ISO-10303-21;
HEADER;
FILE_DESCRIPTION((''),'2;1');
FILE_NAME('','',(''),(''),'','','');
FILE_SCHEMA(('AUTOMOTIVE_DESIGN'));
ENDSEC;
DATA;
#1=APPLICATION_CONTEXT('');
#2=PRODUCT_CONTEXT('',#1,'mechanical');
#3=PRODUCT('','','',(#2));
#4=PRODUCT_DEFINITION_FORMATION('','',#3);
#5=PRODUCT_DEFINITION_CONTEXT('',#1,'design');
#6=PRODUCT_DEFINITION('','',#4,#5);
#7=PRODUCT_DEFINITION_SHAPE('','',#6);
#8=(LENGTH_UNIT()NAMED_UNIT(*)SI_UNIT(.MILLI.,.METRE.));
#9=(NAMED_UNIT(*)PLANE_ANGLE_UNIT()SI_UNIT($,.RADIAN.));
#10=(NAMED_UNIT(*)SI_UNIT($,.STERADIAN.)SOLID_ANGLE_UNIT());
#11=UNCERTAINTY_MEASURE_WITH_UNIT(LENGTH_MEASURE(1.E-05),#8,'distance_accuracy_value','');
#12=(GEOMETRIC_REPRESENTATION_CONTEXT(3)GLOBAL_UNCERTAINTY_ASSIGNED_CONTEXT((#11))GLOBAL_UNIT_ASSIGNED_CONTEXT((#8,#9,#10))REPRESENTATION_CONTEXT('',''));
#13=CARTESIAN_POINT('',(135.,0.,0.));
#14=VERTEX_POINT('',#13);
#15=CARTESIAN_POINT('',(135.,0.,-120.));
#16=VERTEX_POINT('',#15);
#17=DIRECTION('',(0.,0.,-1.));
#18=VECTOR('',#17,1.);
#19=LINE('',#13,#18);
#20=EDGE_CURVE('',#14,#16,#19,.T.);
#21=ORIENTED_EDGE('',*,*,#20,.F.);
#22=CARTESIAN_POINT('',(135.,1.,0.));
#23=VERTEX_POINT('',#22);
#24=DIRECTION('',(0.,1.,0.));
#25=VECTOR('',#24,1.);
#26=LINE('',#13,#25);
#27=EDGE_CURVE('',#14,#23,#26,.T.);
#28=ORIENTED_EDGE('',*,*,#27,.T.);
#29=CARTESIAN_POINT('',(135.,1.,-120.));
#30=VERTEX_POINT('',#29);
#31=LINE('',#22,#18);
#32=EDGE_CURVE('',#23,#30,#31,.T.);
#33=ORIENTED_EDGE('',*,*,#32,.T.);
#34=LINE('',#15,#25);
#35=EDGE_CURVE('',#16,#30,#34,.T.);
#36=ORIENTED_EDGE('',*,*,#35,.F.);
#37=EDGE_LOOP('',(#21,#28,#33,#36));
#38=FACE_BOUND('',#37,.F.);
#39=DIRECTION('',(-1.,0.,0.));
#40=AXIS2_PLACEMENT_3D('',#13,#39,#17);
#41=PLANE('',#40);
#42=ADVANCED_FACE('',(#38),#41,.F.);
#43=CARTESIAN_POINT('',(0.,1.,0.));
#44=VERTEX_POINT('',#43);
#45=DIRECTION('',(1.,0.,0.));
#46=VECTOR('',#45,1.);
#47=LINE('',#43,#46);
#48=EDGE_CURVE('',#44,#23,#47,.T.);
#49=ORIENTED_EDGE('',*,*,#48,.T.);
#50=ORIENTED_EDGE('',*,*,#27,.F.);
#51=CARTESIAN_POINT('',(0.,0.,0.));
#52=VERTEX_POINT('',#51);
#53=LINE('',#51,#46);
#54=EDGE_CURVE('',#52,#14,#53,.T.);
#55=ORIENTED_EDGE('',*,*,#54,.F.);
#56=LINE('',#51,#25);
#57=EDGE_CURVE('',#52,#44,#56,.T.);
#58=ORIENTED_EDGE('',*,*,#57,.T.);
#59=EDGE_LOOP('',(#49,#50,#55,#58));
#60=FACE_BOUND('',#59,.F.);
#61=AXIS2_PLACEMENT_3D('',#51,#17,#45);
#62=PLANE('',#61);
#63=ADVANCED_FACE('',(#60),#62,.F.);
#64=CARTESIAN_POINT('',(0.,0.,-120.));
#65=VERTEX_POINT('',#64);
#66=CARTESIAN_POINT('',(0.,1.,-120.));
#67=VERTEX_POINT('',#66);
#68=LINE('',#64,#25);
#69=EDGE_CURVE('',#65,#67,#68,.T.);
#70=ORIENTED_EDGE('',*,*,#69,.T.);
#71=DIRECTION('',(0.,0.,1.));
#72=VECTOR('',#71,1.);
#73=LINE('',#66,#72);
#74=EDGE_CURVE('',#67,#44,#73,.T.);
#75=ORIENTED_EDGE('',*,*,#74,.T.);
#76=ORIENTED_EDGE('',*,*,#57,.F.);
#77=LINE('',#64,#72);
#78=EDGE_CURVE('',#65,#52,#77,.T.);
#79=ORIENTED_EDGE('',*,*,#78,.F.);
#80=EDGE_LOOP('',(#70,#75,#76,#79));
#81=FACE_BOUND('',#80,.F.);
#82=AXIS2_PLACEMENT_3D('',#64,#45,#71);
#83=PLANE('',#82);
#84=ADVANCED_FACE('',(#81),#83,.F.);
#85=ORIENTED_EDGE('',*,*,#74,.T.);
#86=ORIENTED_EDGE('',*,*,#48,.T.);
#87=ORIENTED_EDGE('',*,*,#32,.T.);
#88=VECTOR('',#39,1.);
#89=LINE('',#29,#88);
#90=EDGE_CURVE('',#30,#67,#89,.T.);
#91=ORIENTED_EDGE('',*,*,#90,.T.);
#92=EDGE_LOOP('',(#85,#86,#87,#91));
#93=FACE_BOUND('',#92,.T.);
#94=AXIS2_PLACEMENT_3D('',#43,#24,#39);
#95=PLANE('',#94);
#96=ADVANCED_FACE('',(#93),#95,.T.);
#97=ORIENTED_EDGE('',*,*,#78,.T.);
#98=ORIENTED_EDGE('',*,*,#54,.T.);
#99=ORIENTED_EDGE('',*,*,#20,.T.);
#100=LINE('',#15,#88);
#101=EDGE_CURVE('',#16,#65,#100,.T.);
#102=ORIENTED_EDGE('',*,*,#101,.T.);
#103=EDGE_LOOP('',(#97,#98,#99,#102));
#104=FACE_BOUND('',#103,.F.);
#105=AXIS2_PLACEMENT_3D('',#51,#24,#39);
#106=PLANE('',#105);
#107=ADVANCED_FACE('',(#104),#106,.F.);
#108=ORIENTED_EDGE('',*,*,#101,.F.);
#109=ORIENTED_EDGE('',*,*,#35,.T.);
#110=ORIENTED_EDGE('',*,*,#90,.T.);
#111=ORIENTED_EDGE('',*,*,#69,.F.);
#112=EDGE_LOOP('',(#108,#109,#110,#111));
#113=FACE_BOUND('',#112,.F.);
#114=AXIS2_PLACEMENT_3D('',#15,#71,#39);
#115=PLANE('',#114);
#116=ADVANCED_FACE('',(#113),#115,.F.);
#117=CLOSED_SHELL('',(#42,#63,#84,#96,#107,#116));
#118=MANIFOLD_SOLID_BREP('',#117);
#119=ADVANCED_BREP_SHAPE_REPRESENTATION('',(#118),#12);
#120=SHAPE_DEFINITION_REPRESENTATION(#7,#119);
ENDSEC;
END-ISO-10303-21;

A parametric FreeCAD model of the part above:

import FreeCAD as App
import Part
import Sketcher
Q = App.Units.Quantity


def add_polygon(sketch, points):
    """Adds a closed chain of lines whose ends are joined by coincident constraints."""
    first, n = sketch.GeometryCount, len(points)
    for a, b in zip(points, points[1:] + points[:1]):
        sketch.addGeometry(Part.LineSegment(App.Vector(*a, 0), App.Vector(*b, 0)), False)
    for i in range(n):
        sketch.addConstraint(Sketcher.Constraint("Coincident", first + i, 2, first + (i + 1) % n, 1))

doc = App.newDocument("Part")
body = doc.addObject("PartDesign::Body", "Body")

# Sketch on XZ plane
sketch1 = doc.addObject("Sketcher::SketchObject", "Sketch")
body.addObject(sketch1)
sketch1.AttachmentSupport = (doc.XZ_Plane, [""])
sketch1.MapMode = "FlatFace"
add_polygon(sketch1, [(0, -120), (0, 0), (135, 0), (135, -120)])  # lines 0-3
sketch1.addConstraint([
    Sketcher.Constraint("Vertical", 0),
    Sketcher.Constraint("Horizontal", 1),
    Sketcher.Constraint("Vertical", 2),
    Sketcher.Constraint("Horizontal", 3),
    Sketcher.Constraint("Coincident", 0, 2, -1, 1),
    Sketcher.Constraint("DistanceX", 1, 1, 1, 2, Q("135 mm")),
    Sketcher.Constraint("DistanceY", 0, 1, 0, 2, Q("120 mm")),
])
pad1 = doc.addObject("PartDesign::Pad", "Pad")
body.addObject(pad1)
pad1.Profile = sketch1
pad1.Length = 1
pad1.Reversed = True

doc.recompute()
